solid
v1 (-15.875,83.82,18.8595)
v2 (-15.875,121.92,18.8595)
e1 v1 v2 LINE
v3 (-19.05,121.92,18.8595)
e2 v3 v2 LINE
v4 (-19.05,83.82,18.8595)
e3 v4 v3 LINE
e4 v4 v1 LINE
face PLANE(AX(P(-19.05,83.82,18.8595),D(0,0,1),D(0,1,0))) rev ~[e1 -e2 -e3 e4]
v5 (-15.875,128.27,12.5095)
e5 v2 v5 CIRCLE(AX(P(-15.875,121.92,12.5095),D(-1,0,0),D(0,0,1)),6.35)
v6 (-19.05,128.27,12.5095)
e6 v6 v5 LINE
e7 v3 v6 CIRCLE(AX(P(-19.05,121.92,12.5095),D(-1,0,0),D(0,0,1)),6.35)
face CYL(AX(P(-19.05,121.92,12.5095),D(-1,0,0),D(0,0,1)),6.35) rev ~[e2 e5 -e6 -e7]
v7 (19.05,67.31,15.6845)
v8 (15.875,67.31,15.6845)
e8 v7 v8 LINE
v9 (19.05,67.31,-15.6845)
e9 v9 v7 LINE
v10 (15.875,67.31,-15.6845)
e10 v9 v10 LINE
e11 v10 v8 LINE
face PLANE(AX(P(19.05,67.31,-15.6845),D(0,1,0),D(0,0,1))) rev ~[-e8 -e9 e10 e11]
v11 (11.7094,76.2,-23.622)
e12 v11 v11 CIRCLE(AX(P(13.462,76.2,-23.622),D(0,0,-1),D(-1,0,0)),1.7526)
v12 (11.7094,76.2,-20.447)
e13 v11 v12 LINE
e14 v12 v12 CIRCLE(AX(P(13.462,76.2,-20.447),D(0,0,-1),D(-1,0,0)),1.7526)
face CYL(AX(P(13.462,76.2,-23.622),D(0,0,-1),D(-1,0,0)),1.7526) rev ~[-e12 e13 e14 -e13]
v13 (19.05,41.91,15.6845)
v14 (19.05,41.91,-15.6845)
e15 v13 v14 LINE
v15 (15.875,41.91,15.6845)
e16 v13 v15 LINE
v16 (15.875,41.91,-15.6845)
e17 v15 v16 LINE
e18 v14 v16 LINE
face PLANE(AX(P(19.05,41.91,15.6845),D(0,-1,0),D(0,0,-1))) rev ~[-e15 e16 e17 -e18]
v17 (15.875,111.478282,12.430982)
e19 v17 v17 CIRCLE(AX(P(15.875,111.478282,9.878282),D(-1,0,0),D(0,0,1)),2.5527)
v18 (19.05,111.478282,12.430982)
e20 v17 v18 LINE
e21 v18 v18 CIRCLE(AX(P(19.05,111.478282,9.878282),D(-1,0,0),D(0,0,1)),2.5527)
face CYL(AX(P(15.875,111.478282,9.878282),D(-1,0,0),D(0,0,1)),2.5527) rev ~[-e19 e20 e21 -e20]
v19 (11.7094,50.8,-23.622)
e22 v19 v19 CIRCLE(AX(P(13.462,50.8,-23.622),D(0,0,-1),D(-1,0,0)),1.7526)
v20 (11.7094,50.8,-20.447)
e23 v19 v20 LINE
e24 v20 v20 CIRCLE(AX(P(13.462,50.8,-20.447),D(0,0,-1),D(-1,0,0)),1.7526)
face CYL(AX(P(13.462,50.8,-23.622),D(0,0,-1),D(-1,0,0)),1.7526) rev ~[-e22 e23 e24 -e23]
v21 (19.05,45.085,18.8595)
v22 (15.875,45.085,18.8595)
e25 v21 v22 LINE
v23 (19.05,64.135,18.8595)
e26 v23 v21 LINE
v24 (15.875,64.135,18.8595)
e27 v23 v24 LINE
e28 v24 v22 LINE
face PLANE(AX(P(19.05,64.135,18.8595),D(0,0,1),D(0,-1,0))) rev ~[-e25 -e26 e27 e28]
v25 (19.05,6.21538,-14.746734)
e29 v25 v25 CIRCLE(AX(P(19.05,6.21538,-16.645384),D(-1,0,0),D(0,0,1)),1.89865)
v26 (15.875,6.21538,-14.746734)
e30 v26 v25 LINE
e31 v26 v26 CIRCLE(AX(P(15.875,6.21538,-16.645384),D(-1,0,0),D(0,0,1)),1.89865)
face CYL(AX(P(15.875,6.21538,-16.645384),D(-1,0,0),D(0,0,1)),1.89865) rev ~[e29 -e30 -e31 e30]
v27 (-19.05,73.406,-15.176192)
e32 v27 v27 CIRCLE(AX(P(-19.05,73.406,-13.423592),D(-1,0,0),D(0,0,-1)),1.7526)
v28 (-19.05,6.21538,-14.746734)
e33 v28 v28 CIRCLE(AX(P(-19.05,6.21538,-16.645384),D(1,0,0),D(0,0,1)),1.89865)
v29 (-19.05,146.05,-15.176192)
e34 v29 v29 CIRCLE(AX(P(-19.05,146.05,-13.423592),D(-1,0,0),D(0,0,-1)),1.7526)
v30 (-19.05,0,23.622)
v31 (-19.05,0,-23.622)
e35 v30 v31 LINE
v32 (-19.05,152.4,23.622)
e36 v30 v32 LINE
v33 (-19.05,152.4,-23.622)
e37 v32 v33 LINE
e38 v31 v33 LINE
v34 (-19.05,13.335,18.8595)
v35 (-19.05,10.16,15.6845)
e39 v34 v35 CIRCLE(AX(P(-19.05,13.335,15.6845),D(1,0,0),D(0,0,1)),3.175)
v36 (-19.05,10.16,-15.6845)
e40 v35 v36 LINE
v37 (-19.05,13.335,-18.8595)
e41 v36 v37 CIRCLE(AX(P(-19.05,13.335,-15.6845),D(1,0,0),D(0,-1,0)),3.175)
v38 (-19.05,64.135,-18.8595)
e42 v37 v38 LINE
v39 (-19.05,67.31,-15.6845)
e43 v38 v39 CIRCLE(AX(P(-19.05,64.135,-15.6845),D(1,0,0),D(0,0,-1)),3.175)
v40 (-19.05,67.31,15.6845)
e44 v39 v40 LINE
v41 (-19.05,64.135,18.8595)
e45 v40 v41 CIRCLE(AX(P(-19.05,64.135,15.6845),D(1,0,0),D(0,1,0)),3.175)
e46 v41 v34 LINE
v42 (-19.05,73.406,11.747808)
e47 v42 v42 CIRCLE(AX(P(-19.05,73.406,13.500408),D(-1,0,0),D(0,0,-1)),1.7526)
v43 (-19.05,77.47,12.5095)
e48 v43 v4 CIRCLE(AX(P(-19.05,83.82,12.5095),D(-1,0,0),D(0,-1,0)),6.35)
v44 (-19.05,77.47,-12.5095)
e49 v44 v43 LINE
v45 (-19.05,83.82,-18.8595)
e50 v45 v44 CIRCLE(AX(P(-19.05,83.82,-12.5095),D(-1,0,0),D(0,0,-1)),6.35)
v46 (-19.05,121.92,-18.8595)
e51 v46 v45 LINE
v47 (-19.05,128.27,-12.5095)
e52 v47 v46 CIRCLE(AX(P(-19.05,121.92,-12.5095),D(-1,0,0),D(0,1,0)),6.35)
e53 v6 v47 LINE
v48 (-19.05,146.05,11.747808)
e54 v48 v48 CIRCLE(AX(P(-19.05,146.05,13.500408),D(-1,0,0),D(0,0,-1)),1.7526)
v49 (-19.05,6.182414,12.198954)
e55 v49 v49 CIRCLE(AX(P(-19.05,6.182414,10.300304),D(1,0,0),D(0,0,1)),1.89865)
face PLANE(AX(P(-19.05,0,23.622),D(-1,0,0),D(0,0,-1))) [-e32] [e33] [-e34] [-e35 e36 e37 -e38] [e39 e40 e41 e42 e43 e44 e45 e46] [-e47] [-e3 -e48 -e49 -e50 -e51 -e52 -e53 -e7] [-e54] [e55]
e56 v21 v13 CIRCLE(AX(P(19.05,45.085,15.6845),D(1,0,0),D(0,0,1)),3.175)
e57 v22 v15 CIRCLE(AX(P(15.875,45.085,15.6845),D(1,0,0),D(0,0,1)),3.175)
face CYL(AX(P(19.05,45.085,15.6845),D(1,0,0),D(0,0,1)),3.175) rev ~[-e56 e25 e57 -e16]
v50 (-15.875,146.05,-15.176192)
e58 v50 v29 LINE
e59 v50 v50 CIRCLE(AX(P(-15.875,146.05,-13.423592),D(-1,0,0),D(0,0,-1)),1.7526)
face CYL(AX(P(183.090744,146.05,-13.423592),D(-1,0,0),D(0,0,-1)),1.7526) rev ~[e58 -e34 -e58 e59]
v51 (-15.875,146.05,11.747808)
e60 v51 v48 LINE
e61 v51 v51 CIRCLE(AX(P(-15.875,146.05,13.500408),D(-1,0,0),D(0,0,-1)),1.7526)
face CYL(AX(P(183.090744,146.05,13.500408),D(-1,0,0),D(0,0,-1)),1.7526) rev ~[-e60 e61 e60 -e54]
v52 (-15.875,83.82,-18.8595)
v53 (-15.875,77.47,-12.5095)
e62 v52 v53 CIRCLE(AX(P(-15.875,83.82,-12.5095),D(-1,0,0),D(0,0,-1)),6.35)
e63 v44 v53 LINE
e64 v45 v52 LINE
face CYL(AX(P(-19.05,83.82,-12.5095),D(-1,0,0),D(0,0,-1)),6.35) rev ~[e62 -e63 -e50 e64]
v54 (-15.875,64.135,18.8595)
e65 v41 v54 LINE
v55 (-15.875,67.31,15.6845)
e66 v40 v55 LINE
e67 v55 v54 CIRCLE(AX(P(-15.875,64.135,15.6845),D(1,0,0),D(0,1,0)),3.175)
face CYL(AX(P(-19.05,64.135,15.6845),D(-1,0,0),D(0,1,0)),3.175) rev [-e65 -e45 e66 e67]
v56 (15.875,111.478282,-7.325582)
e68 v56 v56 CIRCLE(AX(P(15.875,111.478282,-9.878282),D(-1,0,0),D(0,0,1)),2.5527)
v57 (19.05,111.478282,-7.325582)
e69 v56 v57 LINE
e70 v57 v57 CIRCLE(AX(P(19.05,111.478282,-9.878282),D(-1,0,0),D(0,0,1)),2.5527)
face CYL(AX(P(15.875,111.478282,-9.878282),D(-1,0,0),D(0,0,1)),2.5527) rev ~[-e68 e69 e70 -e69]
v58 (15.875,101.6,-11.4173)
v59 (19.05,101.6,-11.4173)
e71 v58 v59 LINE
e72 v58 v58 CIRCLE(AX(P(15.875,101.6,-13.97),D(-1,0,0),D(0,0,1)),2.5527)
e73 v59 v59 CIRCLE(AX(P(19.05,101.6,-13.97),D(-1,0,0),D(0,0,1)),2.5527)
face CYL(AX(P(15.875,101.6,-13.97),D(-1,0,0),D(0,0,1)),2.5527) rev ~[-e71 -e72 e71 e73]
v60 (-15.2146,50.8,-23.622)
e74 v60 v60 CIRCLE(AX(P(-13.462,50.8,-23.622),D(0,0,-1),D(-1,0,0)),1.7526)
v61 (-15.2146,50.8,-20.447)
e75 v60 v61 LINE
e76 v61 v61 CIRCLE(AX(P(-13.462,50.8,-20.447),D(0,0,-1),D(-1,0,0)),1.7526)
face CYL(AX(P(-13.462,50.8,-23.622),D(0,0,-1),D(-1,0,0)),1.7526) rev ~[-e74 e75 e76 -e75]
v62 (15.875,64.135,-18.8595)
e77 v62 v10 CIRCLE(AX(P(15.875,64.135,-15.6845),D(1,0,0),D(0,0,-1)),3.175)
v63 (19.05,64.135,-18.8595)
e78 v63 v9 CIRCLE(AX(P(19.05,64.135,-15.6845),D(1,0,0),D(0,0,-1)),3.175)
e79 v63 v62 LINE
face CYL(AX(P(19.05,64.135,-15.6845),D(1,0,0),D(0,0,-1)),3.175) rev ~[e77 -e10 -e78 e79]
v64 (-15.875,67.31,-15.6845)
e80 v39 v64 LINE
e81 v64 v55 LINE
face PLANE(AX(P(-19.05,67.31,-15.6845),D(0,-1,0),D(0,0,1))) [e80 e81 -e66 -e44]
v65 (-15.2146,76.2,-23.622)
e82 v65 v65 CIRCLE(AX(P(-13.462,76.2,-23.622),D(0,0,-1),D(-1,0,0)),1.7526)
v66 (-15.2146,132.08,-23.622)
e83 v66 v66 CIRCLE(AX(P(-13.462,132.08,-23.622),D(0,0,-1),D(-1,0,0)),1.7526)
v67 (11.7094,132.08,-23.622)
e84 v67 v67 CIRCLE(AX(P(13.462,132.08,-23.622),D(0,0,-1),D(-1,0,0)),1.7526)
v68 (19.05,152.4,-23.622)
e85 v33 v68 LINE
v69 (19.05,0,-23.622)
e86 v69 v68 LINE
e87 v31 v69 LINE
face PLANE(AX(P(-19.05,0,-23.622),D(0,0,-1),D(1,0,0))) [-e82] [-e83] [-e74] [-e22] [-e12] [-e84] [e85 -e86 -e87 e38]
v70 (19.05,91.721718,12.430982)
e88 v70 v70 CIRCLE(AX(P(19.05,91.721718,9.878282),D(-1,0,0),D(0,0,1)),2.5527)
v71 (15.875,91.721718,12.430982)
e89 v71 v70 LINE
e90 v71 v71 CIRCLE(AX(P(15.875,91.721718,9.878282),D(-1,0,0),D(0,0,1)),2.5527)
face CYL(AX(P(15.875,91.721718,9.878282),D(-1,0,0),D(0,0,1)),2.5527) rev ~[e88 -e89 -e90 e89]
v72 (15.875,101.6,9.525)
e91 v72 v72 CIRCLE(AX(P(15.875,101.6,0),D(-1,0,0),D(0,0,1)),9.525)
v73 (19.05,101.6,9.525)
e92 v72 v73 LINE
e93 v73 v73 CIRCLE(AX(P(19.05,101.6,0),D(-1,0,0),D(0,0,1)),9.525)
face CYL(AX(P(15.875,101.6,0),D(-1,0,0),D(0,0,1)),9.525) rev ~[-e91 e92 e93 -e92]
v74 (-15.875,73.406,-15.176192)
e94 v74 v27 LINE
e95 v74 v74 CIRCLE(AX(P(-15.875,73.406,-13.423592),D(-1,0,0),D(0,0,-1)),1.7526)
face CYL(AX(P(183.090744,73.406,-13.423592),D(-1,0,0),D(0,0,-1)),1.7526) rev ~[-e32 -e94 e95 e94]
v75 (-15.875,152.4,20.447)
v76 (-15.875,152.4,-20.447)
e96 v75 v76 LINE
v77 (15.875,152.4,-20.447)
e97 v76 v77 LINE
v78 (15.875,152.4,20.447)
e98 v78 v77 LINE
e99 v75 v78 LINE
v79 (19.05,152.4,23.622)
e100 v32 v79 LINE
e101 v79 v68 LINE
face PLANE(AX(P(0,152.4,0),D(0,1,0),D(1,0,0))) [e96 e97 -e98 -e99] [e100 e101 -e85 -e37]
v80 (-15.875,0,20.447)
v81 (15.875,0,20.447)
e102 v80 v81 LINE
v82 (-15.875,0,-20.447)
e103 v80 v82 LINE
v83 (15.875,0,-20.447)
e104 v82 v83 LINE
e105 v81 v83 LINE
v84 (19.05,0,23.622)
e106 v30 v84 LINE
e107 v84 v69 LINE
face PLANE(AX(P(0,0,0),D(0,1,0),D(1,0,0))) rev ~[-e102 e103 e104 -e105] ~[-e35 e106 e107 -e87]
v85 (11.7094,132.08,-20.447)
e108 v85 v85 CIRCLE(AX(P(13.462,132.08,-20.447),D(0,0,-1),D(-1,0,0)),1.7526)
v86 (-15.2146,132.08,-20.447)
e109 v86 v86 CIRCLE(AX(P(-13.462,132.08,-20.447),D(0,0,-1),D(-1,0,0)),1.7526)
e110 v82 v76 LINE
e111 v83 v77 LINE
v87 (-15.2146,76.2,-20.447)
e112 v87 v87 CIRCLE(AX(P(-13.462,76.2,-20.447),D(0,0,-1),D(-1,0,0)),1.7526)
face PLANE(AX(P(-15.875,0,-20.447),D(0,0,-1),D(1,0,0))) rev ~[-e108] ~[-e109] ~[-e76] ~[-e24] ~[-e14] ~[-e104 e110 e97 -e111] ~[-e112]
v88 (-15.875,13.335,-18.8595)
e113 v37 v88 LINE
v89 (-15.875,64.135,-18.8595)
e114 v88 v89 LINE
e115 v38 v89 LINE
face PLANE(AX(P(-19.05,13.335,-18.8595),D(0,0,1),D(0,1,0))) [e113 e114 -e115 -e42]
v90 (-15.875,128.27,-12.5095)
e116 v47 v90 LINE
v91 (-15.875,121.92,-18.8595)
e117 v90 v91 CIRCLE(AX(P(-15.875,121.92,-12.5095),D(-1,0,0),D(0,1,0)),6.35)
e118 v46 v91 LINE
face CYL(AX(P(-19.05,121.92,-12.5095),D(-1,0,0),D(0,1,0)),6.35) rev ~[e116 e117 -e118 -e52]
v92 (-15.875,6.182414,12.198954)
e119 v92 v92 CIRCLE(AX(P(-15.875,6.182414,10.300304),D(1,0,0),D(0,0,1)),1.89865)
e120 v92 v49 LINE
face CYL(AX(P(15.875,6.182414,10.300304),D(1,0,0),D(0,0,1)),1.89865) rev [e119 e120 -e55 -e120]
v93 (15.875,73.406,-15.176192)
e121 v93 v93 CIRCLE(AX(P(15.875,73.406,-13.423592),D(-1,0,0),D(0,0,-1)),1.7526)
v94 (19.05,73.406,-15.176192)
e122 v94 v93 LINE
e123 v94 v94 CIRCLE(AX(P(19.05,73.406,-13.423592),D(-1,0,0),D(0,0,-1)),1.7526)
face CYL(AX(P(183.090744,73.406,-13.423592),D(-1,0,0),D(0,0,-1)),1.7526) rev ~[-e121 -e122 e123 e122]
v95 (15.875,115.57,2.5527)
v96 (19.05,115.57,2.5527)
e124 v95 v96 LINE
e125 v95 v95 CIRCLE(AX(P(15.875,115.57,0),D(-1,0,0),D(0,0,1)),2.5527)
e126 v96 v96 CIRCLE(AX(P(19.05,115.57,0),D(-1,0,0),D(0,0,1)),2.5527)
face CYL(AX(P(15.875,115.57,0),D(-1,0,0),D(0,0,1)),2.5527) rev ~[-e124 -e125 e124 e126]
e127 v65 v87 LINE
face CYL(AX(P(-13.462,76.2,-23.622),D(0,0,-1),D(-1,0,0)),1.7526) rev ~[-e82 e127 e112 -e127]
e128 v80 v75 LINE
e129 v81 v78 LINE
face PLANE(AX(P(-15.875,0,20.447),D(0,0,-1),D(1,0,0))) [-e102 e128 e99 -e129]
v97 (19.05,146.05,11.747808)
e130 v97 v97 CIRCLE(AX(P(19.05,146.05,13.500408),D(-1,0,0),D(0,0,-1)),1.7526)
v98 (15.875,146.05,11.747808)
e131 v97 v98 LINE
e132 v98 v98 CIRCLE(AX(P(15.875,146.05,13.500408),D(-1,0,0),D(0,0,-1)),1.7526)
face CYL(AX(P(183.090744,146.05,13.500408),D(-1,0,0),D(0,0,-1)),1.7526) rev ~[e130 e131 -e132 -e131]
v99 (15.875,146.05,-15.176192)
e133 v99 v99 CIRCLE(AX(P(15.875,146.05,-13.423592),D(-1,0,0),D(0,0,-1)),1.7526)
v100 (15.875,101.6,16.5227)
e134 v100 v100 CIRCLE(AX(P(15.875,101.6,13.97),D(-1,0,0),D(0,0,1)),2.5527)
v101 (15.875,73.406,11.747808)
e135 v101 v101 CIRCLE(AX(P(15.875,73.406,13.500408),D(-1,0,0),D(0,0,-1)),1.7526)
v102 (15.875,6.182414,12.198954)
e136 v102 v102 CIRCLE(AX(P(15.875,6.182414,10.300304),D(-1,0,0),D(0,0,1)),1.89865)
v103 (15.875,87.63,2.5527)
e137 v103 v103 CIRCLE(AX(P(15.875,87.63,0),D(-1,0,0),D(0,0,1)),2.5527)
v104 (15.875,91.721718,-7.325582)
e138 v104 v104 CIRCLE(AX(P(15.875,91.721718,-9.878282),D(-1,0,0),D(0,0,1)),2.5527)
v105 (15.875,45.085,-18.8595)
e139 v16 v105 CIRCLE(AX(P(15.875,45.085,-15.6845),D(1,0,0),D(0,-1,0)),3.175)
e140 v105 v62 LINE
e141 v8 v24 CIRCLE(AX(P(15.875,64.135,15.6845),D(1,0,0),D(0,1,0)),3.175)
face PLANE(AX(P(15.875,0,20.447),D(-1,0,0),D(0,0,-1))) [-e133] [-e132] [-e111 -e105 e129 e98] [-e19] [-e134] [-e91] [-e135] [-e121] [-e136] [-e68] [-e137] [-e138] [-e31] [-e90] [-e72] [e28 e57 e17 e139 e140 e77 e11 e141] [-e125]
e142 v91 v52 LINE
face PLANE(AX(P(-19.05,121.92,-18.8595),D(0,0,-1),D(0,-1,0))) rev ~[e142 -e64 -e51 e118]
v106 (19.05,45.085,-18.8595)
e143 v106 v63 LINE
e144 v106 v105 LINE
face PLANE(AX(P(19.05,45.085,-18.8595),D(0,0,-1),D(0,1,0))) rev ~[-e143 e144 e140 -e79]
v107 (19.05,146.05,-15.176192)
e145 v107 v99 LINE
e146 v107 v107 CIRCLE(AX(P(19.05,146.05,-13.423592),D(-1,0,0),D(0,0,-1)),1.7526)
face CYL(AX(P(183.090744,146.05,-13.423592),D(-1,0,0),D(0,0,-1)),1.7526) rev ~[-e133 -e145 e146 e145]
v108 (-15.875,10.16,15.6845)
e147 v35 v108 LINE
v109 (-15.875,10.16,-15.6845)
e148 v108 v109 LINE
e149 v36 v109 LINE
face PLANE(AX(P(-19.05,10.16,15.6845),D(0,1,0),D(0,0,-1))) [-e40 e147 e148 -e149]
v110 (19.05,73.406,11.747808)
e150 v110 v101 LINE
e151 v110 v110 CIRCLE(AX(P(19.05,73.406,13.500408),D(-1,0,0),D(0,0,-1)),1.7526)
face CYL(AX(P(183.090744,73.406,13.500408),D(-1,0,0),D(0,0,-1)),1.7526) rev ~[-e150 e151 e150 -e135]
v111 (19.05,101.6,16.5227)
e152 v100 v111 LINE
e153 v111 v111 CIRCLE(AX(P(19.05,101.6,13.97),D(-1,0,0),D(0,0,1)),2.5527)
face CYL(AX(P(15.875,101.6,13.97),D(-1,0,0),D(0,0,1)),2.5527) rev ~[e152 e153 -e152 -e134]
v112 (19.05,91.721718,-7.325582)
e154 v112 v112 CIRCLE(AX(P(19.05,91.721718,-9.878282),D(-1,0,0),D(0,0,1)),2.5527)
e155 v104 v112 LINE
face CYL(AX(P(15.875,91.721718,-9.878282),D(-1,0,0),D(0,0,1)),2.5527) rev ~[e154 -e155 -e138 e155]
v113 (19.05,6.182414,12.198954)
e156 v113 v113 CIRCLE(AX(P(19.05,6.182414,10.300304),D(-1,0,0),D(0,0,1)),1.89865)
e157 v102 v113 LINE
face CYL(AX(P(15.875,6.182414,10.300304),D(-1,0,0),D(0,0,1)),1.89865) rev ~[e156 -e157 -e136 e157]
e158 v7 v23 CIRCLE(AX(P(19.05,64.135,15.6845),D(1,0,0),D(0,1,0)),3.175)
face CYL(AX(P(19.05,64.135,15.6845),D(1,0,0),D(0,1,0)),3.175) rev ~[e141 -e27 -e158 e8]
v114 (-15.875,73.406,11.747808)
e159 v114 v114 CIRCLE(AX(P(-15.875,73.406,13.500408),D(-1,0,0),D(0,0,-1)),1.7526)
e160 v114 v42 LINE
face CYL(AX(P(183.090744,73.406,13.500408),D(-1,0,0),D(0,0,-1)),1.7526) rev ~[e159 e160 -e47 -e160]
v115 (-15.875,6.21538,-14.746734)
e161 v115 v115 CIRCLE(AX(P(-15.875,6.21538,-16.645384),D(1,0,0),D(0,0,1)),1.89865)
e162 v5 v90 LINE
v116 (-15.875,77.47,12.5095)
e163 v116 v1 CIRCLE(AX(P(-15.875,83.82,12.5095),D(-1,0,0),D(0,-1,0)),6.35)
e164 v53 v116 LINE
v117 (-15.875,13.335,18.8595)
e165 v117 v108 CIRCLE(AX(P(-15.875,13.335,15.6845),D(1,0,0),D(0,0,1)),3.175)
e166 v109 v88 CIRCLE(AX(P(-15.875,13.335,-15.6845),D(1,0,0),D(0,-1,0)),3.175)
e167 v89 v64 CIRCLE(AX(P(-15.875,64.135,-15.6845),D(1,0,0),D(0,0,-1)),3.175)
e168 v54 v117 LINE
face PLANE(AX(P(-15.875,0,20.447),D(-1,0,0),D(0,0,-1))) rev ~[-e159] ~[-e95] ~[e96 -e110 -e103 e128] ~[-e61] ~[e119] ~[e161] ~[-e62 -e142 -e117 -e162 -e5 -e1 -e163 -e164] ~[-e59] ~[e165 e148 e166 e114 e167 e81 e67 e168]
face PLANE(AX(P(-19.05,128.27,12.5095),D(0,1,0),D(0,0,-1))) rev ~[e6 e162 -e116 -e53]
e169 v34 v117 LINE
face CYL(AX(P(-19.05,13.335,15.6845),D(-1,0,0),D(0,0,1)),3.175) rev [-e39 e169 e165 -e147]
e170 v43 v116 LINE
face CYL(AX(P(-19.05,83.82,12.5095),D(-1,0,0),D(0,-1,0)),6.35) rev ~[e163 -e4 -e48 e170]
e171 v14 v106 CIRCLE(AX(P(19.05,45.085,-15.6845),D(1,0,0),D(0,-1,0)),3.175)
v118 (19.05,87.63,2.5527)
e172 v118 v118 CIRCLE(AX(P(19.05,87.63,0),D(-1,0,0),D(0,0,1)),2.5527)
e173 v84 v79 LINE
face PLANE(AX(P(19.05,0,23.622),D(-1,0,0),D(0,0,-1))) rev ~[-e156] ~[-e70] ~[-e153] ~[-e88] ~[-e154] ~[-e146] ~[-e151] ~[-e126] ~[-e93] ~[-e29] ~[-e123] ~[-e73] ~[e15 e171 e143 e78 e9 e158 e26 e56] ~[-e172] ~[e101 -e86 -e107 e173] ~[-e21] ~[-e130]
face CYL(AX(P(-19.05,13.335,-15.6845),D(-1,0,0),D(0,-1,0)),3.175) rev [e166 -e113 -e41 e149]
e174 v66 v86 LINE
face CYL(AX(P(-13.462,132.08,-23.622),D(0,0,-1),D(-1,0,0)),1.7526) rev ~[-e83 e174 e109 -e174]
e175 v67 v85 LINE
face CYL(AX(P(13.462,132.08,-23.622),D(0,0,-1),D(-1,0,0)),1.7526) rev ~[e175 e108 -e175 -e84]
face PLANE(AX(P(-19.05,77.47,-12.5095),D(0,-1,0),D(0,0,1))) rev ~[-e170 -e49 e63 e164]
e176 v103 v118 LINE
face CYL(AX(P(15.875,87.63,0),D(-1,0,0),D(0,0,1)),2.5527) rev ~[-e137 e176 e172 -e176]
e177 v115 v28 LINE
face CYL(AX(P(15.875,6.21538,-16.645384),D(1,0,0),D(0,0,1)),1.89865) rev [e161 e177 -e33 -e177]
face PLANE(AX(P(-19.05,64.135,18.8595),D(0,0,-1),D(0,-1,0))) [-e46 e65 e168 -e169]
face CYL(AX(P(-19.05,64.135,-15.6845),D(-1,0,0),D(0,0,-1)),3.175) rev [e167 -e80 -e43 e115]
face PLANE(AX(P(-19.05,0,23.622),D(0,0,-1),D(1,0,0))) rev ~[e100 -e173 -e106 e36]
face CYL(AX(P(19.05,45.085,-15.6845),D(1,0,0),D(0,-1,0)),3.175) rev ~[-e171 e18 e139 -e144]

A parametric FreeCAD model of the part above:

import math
import FreeCAD as App
import Part
import Sketcher
Q = App.Units.Quantity

doc = App.newDocument("Part")
body = doc.addObject("PartDesign::Body", "Body")

# Sketch on XZ plane
sketch1 = doc.addObject("Sketcher::SketchObject", "Sketch")
body.addObject(sketch1)
sketch1.AttachmentSupport = (doc.XZ_Plane, [""])
sketch1.MapMode = "FlatFace"
sketch1.addGeometry([
    Part.LineSegment(App.Vector(-19.05, -23.622, 0), App.Vector(-19.05, 23.622, 0)),  # 0
    Part.LineSegment(App.Vector(-19.05, 23.622, 0), App.Vector(19.05, 23.622, 0)),  # 1
    Part.LineSegment(App.Vector(19.05, 23.622, 0), App.Vector(19.05, -23.622, 0)),  # 2
    Part.LineSegment(App.Vector(19.05, -23.622, 0), App.Vector(-19.05, -23.622, 0)),  # 3
    Part.LineSegment(App.Vector(15.875, 20.447, 0), App.Vector(-15.875, 20.447, 0)),  # 4
    Part.LineSegment(App.Vector(-15.875, 20.447, 0), App.Vector(-15.875, -20.447, 0)),  # 5
    Part.LineSegment(App.Vector(-15.875, -20.447, 0), App.Vector(15.875, -20.447, 0)),  # 6
    Part.LineSegment(App.Vector(15.875, -20.447, 0), App.Vector(15.875, 20.447, 0)),  # 7
], False)
sketch1.addConstraint([
    Sketcher.Constraint("Coincident", 0, 2, 1, 1),
    Sketcher.Constraint("Coincident", 1, 2, 2, 1),
    Sketcher.Constraint("Coincident", 2, 2, 3, 1),
    Sketcher.Constraint("Coincident", 3, 2, 0, 1),
    Sketcher.Constraint("Coincident", 4, 2, 5, 1),
    Sketcher.Constraint("Coincident", 5, 2, 6, 1),
    Sketcher.Constraint("Coincident", 6, 2, 7, 1),
    Sketcher.Constraint("Coincident", 7, 2, 4, 1),
    Sketcher.Constraint("Vertical", 0),
    Sketcher.Constraint("Horizontal", 1),
    Sketcher.Constraint("Vertical", 2),
    Sketcher.Constraint("Horizontal", 3),
    Sketcher.Constraint("Horizontal", 4),
    Sketcher.Constraint("Vertical", 5),
    Sketcher.Constraint("Horizontal", 6),
    Sketcher.Constraint("Vertical", 7),
    Sketcher.Constraint("Symmetric", 0, 2, 2, 2, -1, 1),
    Sketcher.Constraint("Symmetric", 4, 2, 6, 2, -1, 1),
    Sketcher.Constraint("DistanceX", 1, 1, 1, 2, Q("1.5 in")),
    Sketcher.Constraint("DistanceX", 4, 2, 4, 1, Q("1.25 in")),
    Sketcher.Constraint("DistanceY", 0, 1, 0, 2, Q("1.86 in")),
    Sketcher.Constraint("DistanceY", 5, 2, 5, 1, Q("1.61 in")),
])
pad1 = doc.addObject("PartDesign::Pad", "Pad")
body.addObject(pad1)
pad1.Profile = sketch1
pad1.Length = Q("6 in")
pad1.Reversed = True

# Sketch on YZ plane
sketch2 = doc.addObject("Sketcher::SketchObject", "Sketch001")
body.addObject(sketch2)
sketch2.AttachmentSupport = (doc.YZ_Plane, [""])
sketch2.MapMode = "FlatFace"
sketch2.AttachmentOffset = App.Placement(App.Vector(0, 0, 0.625 * 25.4), App.Rotation())
sketch2.addGeometry([
    Part.Circle(App.Vector(6.21538, -16.645384, 0), App.Vector(0, 0, 1), 1.89865),
    Part.Circle(App.Vector(6.182414, 10.300304, 0), App.Vector(0, 0, 1), 1.89865),
], False)
sketch2.addConstraint([
    Sketcher.Constraint("Equal", 0, 1),
    Sketcher.Constraint("Diameter", 0, Q("0.1495 in")),
    Sketcher.Constraint("DistanceX", -1, 1, 0, 3, Q("0.2447 in")),
    Sketcher.Constraint("DistanceY", 0, 3, 1, 3, Q("26.945688 mm")),
    Sketcher.Constraint("DistanceY", 0, 3, -1, 1, Q("16.645384 mm")),
    Sketcher.Constraint("DistanceX", -1, 1, 1, 3, Q("6.182414 mm")),
])
pocket1 = doc.addObject("PartDesign::Pocket", "Pocket")
body.addObject(pocket1)
pocket1.Profile = sketch2
pocket1.Type = "ThroughAll"
pocket1.Midplane = True

# Sketch on YZ plane
sketch3 = doc.addObject("Sketcher::SketchObject", "Sketch002")
body.addObject(sketch3)
sketch3.AttachmentSupport = (doc.YZ_Plane, [""])
sketch3.MapMode = "FlatFace"
sketch3.AttachmentOffset = App.Placement(App.Vector(0, 0, -0.75 * 25.4), App.Rotation())
sketch3.addGeometry([
    Part.LineSegment(App.Vector(10.16, -15.6845, 0), App.Vector(10.16, 15.6845, 0)),  # 0
    Part.ArcOfCircle(Part.Circle(App.Vector(13.335, 15.6845, 0), App.Vector(0, 0, 1), 3.175), math.radians(90), math.radians(180)),  # 1
    Part.LineSegment(App.Vector(13.335, 18.8595, 0), App.Vector(64.135, 18.8595, 0)),  # 2
    Part.ArcOfCircle(Part.Circle(App.Vector(64.135, 15.6845, 0), App.Vector(0, 0, 1), 3.175), math.radians(0), math.radians(90)),  # 3
    Part.LineSegment(App.Vector(67.31, 15.6845, 0), App.Vector(67.31, -15.6845, 0)),  # 4
    Part.ArcOfCircle(Part.Circle(App.Vector(64.135, -15.6845, 0), App.Vector(0, 0, 1), 3.175), math.radians(-90), math.radians(0)),  # 5
    Part.LineSegment(App.Vector(64.135, -18.8595, 0), App.Vector(13.335, -18.8595, 0)),  # 6
    Part.ArcOfCircle(Part.Circle(App.Vector(13.335, -15.6845, 0), App.Vector(0, 0, 1), 3.175), math.radians(-180), math.radians(-90)),  # 7
], False)
sketch3.addConstraint([
    Sketcher.Constraint("Tangent", 0, 2, 1, 2),
    Sketcher.Constraint("Tangent", 1, 1, 2, 1),
    Sketcher.Constraint("Tangent", 2, 2, 3, 2),
    Sketcher.Constraint("Tangent", 3, 1, 4, 1),
    Sketcher.Constraint("Tangent", 4, 2, 5, 2),
    Sketcher.Constraint("Tangent", 5, 1, 6, 1),
    Sketcher.Constraint("Tangent", 6, 2, 7, 2),
    Sketcher.Constraint("Tangent", 7, 1, 0, 1),
    Sketcher.Constraint("Vertical", 0),
    Sketcher.Constraint("Horizontal", 2),
    Sketcher.Constraint("Vertical", 4),
    Sketcher.Constraint("Horizontal", 6),
    Sketcher.Constraint("Equal", 1, 3),
    Sketcher.Constraint("Equal", 3, 5),
    Sketcher.Constraint("Equal", 5, 7),
    Sketcher.Constraint("DistanceX", 2, 1, 2, 2, Q("2 in")),
    Sketcher.Constraint("Radius", 1, Q("0.125 in")),
    Sketcher.Constraint("DistanceX", -1, 1, 0, 2, Q("0.4 in")),
    Sketcher.Constraint("DistanceY", 0, 1, 0, 2, Q("1.235 in")),
    Sketcher.Constraint("DistanceY", -1, 1, 1, 3, Q("0.6175 in")),
])
pocket2 = doc.addObject("PartDesign::Pocket", "Pocket001")
body.addObject(pocket2)
pocket2.Profile = sketch3
pocket2.Length = Q("0.125 in")
pocket2.Reversed = True

# Sketch on YZ plane
sketch4 = doc.addObject("Sketcher::SketchObject", "Sketch003")
body.addObject(sketch4)
sketch4.AttachmentSupport = (doc.YZ_Plane, [""])
sketch4.MapMode = "FlatFace"
sketch4.AttachmentOffset = App.Placement(App.Vector(0, 0, 0.75 * 25.4), App.Rotation())
sketch4.addGeometry([
    Part.LineSegment(App.Vector(67.31, -15.6845, 0), App.Vector(67.31, 15.6845, 0)),  # 0
    Part.ArcOfCircle(Part.Circle(App.Vector(64.135, 15.6845, 0), App.Vector(0, 0, 1), 3.175), math.radians(0), math.radians(90)),  # 1
    Part.LineSegment(App.Vector(64.135, 18.8595, 0), App.Vector(45.085, 18.8595, 0)),  # 2
    Part.ArcOfCircle(Part.Circle(App.Vector(45.085, 15.6845, 0), App.Vector(0, 0, 1), 3.175), math.radians(90), math.radians(180)),  # 3
    Part.LineSegment(App.Vector(41.91, 15.6845, 0), App.Vector(41.91, -15.6845, 0)),  # 4
    Part.ArcOfCircle(Part.Circle(App.Vector(45.085, -15.6845, 0), App.Vector(0, 0, 1), 3.175), math.radians(-180), math.radians(-90)),  # 5
    Part.LineSegment(App.Vector(45.085, -18.8595, 0), App.Vector(64.135, -18.8595, 0)),  # 6
    Part.ArcOfCircle(Part.Circle(App.Vector(64.135, -15.6845, 0), App.Vector(0, 0, 1), 3.175), math.radians(-90), math.radians(0)),  # 7
], False)
sketch4.addConstraint([
    Sketcher.Constraint("Tangent", 0, 2, 1, 1),
    Sketcher.Constraint("Tangent", 1, 2, 2, 1),
    Sketcher.Constraint("Tangent", 2, 2, 3, 1),
    Sketcher.Constraint("Tangent", 3, 2, 4, 1),
    Sketcher.Constraint("Tangent", 4, 2, 5, 1),
    Sketcher.Constraint("Tangent", 5, 2, 6, 1),
    Sketcher.Constraint("Tangent", 6, 2, 7, 1),
    Sketcher.Constraint("Tangent", 7, 2, 0, 1),
    Sketcher.Constraint("Vertical", 0),
    Sketcher.Constraint("Horizontal", 2),
    Sketcher.Constraint("Vertical", 4),
    Sketcher.Constraint("Horizontal", 6),
    Sketcher.Constraint("Equal", 1, 3),
    Sketcher.Constraint("Equal", 3, 5),
    Sketcher.Constraint("Equal", 5, 7),
    Sketcher.Constraint("Radius", 1, Q("0.125 in")),
    Sketcher.Constraint("DistanceX", 3, 2, 0, 2, Q("1 in")),
    Sketcher.Constraint("DistanceY", 0, 1, 0, 2, Q("1.235 in")),
    Sketcher.Constraint("DistanceX", -1, 1, 0, 2, Q("2.65 in")),
    Sketcher.Constraint("DistanceY", -1, 1, 1, 3, Q("0.6175 in")),
])
pocket3 = doc.addObject("PartDesign::Pocket", "Pocket002")
body.addObject(pocket3)
pocket3.Profile = sketch4
pocket3.Length = Q("0.125 in")

# Sketch on YZ plane
sketch5 = doc.addObject("Sketcher::SketchObject", "Sketch004")
body.addObject(sketch5)
sketch5.AttachmentSupport = (doc.YZ_Plane, [""])
sketch5.MapMode = "FlatFace"
sketch5.AttachmentOffset = App.Placement(App.Vector(0, 0, 0.625 * 25.4), App.Rotation())
sketch5.addGeometry([
    Part.Circle(App.Vector(101.6, 0, 0), App.Vector(0, 0, 1), 9.525),  # 0
    Part.Circle(App.Vector(87.63, 0, 0), App.Vector(0, 0, 1), 2.5527),  # 1
    Part.Circle(App.Vector(91.721718, -9.878282, 0), App.Vector(0, 0, 1), 2.5527),  # 2
    Part.Circle(App.Vector(101.6, -13.97, 0), App.Vector(0, 0, 1), 2.5527),  # 3
    Part.Circle(App.Vector(111.478282, -9.878282, 0), App.Vector(0, 0, 1), 2.5527),  # 4
    Part.Circle(App.Vector(115.57, 0, 0), App.Vector(0, 0, 1), 2.5527),  # 5
    Part.Circle(App.Vector(111.478282, 9.878282, 0), App.Vector(0, 0, 1), 2.5527),  # 6
    Part.Circle(App.Vector(101.6, 13.97, 0), App.Vector(0, 0, 1), 2.5527),  # 7
    Part.Circle(App.Vector(91.721718, 9.878282, 0), App.Vector(0, 0, 1), 2.5527),  # 8
], False)
sketch5.addConstraint([
    Sketcher.Constraint("Equal", 1, 2),
    Sketcher.Constraint("Equal", 2, 3),
    Sketcher.Constraint("Equal", 3, 4),
    Sketcher.Constraint("Equal", 4, 5),
    Sketcher.Constraint("Equal", 5, 6),
    Sketcher.Constraint("Equal", 6, 7),
    Sketcher.Constraint("Equal", 7, 8),
    Sketcher.Constraint("Symmetric", 4, 3, 6, 3, -1),
    Sketcher.Constraint("Symmetric", 3, 3, 7, 3, -1),
    Sketcher.Constraint("Symmetric", 2, 3, 8, 3, -1),
    Sketcher.Constraint("PointOnObject", 0, 3, -1),
    Sketcher.Constraint("PointOnObject", 1, 3, -1),
    Sketcher.Constraint("PointOnObject", 5, 3, -1),
    Sketcher.Constraint("Horizontal", 2, 3, 4, 3),
    Sketcher.Constraint("Vertical", 0, 3, 3, 3),
    Sketcher.Constraint("Diameter", 0, Q("0.75 in")),
    Sketcher.Constraint("Diameter", 1, Q("0.201 in")),
    Sketcher.Constraint("DistanceX", -1, 1, 0, 3, Q("4 in")),
    Sketcher.Constraint("DistanceX", 1, 3, 5, 3, Q("1.1 in")),
    Sketcher.Constraint("DistanceX", -1, 1, 1, 3, Q("3.45 in")),
    Sketcher.Constraint("DistanceY", 3, 3, -1, 1, Q("0.55 in")),
    Sketcher.Constraint("DistanceX", -1, 1, 2, 3, Q("91.721718 mm")),
    Sketcher.Constraint("DistanceY", 2, 3, -1, 1, Q("9.878282 mm")),
    Sketcher.Constraint("DistanceX", -1, 1, 4, 3, Q("111.478282 mm")),
])
pocket4 = doc.addObject("PartDesign::Pocket", "Pocket003")
body.addObject(pocket4)
pocket4.Profile = sketch5
pocket4.Length = Q("0.125 in")
pocket4.Reversed = True

# Sketch on YZ plane
sketch6 = doc.addObject("Sketcher::SketchObject", "Sketch005")
body.addObject(sketch6)
sketch6.AttachmentSupport = (doc.YZ_Plane, [""])
sketch6.MapMode = "FlatFace"
sketch6.AttachmentOffset = App.Placement(App.Vector(0, 0, -0.75 * 25.4), App.Rotation())
sketch6.addGeometry([
    Part.LineSegment(App.Vector(77.47, -12.5095, 0), App.Vector(77.47, 12.5095, 0)),  # 0
    Part.ArcOfCircle(Part.Circle(App.Vector(83.82, 12.5095, 0), App.Vector(0, 0, 1), 6.35), math.radians(90), math.radians(180)),  # 1
    Part.LineSegment(App.Vector(83.82, 18.8595, 0), App.Vector(121.92, 18.8595, 0)),  # 2
    Part.ArcOfCircle(Part.Circle(App.Vector(121.92, 12.5095, 0), App.Vector(0, 0, 1), 6.35), math.radians(0), math.radians(90)),  # 3
    Part.LineSegment(App.Vector(128.27, 12.5095, 0), App.Vector(128.27, -12.5095, 0)),  # 4
    Part.ArcOfCircle(Part.Circle(App.Vector(121.92, -12.5095, 0), App.Vector(0, 0, 1), 6.35), math.radians(-90), math.radians(0)),  # 5
    Part.LineSegment(App.Vector(121.92, -18.8595, 0), App.Vector(83.82, -18.8595, 0)),  # 6
    Part.ArcOfCircle(Part.Circle(App.Vector(83.82, -12.5095, 0), App.Vector(0, 0, 1), 6.35), math.radians(180), math.radians(270)),  # 7
], False)
sketch6.addConstraint([
    Sketcher.Constraint("Tangent", 0, 2, 1, 2),
    Sketcher.Constraint("Tangent", 1, 1, 2, 1),
    Sketcher.Constraint("Tangent", 2, 2, 3, 2),
    Sketcher.Constraint("Tangent", 3, 1, 4, 1),
    Sketcher.Constraint("Tangent", 4, 2, 5, 2),
    Sketcher.Constraint("Tangent", 5, 1, 6, 1),
    Sketcher.Constraint("Tangent", 6, 2, 7, 2),
    Sketcher.Constraint("Tangent", 7, 1, 0, 1),
    Sketcher.Constraint("Vertical", 0),
    Sketcher.Constraint("Horizontal", 2),
    Sketcher.Constraint("Vertical", 4),
    Sketcher.Constraint("Horizontal", 6),
    Sketcher.Constraint("Equal", 1, 3),
    Sketcher.Constraint("Equal", 3, 5),
    Sketcher.Constraint("Equal", 5, 7),
    Sketcher.Constraint("Radius", 1, Q("0.25 in")),
    Sketcher.Constraint("DistanceX", 2, 1, 2, 2, Q("1.5 in")),
    Sketcher.Constraint("DistanceX", -1, 1, 1, 3, Q("3.3 in")),
    Sketcher.Constraint("DistanceY", 0, 1, 0, 2, Q("0.985 in")),
    Sketcher.Constraint("DistanceY", -1, 1, 1, 3, Q("0.4925 in")),
])
pocket5 = doc.addObject("PartDesign::Pocket", "Pocket004")
body.addObject(pocket5)
pocket5.Profile = sketch6
pocket5.Length = Q("0.125 in")
pocket5.Reversed = True

# Sketch on YZ plane
sketch7 = doc.addObject("Sketcher::SketchObject", "Sketch006")
body.addObject(sketch7)
sketch7.AttachmentSupport = (doc.YZ_Plane, [""])
sketch7.MapMode = "FlatFace"
sketch7.AttachmentOffset = App.Placement(App.Vector(0, 0, 0.75 * 25.4), App.Rotation())
sketch7.addGeometry([
    Part.Circle(App.Vector(73.406, -13.423592, 0), App.Vector(0, 0, 1), 1.7526),
    Part.Circle(App.Vector(73.406, 13.500408, 0), App.Vector(0, 0, 1), 1.7526),
    Part.Circle(App.Vector(146.05, 13.500408, 0), App.Vector(0, 0, 1), 1.7526),
    Part.Circle(App.Vector(146.05, -13.423592, 0), App.Vector(0, 0, 1), 1.7526),
], False)
sketch7.addConstraint([
    Sketcher.Constraint("Equal", 0, 1),
    Sketcher.Constraint("Equal", 1, 2),
    Sketcher.Constraint("Equal", 2, 3),
    Sketcher.Constraint("Horizontal", 1, 3, 2, 3),
    Sketcher.Constraint("Horizontal", 0, 3, 3, 3),
    Sketcher.Constraint("Vertical", 0, 3, 1, 3),
    Sketcher.Constraint("Vertical", 2, 3, 3, 3),
    Sketcher.Constraint("Diameter", 0, Q("0.138 in")),
    Sketcher.Constraint("DistanceX", -1, 1, 0, 3, Q("2.89 in")),
    Sketcher.Constraint("DistanceX", -1, 1, 2, 3, Q("5.75 in")),
    Sketcher.Constraint("DistanceY", 0, 3, 1, 3, Q("1.06 in")),
    Sketcher.Constraint("DistanceY", 0, 3, -1, 1, Q("13.423592 mm")),
])
doc.recompute()
hole = doc.addObject("PartDesign::Hole", "Hole")
body.addObject(hole)
hole.Profile = sketch7
hole.ThreadType = "None"
hole.Diameter = Q("0.138 in")
hole.DepthType = "ThroughAll"

# Sketch on XY plane
sketch8 = doc.addObject("Sketcher::SketchObject", "Sketch007")
body.addObject(sketch8)
sketch8.AttachmentSupport = (doc.XY_Plane, [""])
sketch8.MapMode = "FlatFace"
sketch8.AttachmentOffset = App.Placement(App.Vector(0, 0, -0.93 * 25.4), App.Rotation())
sketch8.addGeometry(Part.Circle(App.Vector(13.462, 50.8, 0), App.Vector(0, 0, 1), 1.7526), False)
sketch8.addConstraint([
    Sketcher.Constraint("Diameter", 0, Q("0.138 in")),
    Sketcher.Constraint("DistanceY", -1, 1, 0, 3, Q("2 in")),
    Sketcher.Constraint("DistanceX", -1, 1, 0, 3, Q("0.53 in")),
])
pocket6 = doc.addObject("PartDesign::Pocket", "Pocket005")
body.addObject(pocket6)
pocket6.Profile = sketch8
pocket6.Type = "UpToFirst"
pocket6.Reversed = True

# Sketch on XY plane
sketch9 = doc.addObject("Sketcher::SketchObject", "Sketch008")
body.addObject(sketch9)
sketch9.AttachmentSupport = (doc.XY_Plane, [""])
sketch9.MapMode = "FlatFace"
sketch9.AttachmentOffset = App.Placement(App.Vector(0, 0, -0.93 * 25.4), App.Rotation())
sketch9.addGeometry(Part.Circle(App.Vector(-13.462, 50.8, 0), App.Vector(0, 0, 1), 1.7526), False)
sketch9.addConstraint([
    Sketcher.Constraint("Diameter", 0, Q("0.138 in")),
    Sketcher.Constraint("DistanceY", -1, 1, 0, 3, Q("2 in")),
    Sketcher.Constraint("DistanceX", 0, 3, -1, 1, Q("0.53 in")),
])
pocket7 = doc.addObject("PartDesign::Pocket", "Pocket006")
body.addObject(pocket7)
pocket7.Profile = sketch9
pocket7.Type = "UpToFirst"
pocket7.Reversed = True

# Sketch on XY plane
sketch10 = doc.addObject("Sketcher::SketchObject", "Sketch009")
body.addObject(sketch10)
sketch10.AttachmentSupport = (doc.XY_Plane, [""])
sketch10.MapMode = "FlatFace"
sketch10.AttachmentOffset = App.Placement(App.Vector(0, 0, -0.93 * 25.4), App.Rotation())
sketch10.addGeometry(Part.Circle(App.Vector(13.462, 76.2, 0), App.Vector(0, 0, 1), 1.7526), False)
sketch10.addConstraint([
    Sketcher.Constraint("Diameter", 0, Q("0.138 in")),
    Sketcher.Constraint("DistanceY", -1, 1, 0, 3, Q("3 in")),
    Sketcher.Constraint("DistanceX", -1, 1, 0, 3, Q("0.53 in")),
])
pocket8 = doc.addObject("PartDesign::Pocket", "Pocket007")
body.addObject(pocket8)
pocket8.Profile = sketch10
pocket8.Type = "UpToFirst"
pocket8.Reversed = True

# Sketch on XY plane
sketch11 = doc.addObject("Sketcher::SketchObject", "Sketch010")
body.addObject(sketch11)
sketch11.AttachmentSupport = (doc.XY_Plane, [""])
sketch11.MapMode = "FlatFace"
sketch11.AttachmentOffset = App.Placement(App.Vector(0, 0, -0.93 * 25.4), App.Rotation())
sketch11.addGeometry(Part.Circle(App.Vector(-13.462, 76.2, 0), App.Vector(0, 0, 1), 1.7526), False)
sketch11.addConstraint([
    Sketcher.Constraint("Diameter", 0, Q("0.138 in")),
    Sketcher.Constraint("DistanceY", -1, 1, 0, 3, Q("3 in")),
    Sketcher.Constraint("DistanceX", 0, 3, -1, 1, Q("0.53 in")),
])
pocket9 = doc.addObject("PartDesign::Pocket", "Pocket008")
body.addObject(pocket9)
pocket9.Profile = sketch11
pocket9.Type = "UpToFirst"
pocket9.Reversed = True

# Sketch on XY plane
sketch12 = doc.addObject("Sketcher::SketchObject", "Sketch011")
body.addObject(sketch12)
sketch12.AttachmentSupport = (doc.XY_Plane, [""])
sketch12.MapMode = "FlatFace"
sketch12.AttachmentOffset = App.Placement(App.Vector(0, 0, -0.93 * 25.4), App.Rotation())
sketch12.addGeometry(Part.Circle(App.Vector(13.462, 132.08, 0), App.Vector(0, 0, 1), 1.7526), False)
sketch12.addConstraint([
    Sketcher.Constraint("Diameter", 0, Q("0.138 in")),
    Sketcher.Constraint("DistanceY", -1, 1, 0, 3, Q("5.2 in")),
    Sketcher.Constraint("DistanceX", -1, 1, 0, 3, Q("0.53 in")),
])
pocket10 = doc.addObject("PartDesign::Pocket", "Pocket009")
body.addObject(pocket10)
pocket10.Profile = sketch12
pocket10.Type = "UpToFirst"
pocket10.Reversed = True

# Sketch on XY plane
sketch13 = doc.addObject("Sketcher::SketchObject", "Sketch012")
body.addObject(sketch13)
sketch13.AttachmentSupport = (doc.XY_Plane, [""])
sketch13.MapMode = "FlatFace"
sketch13.AttachmentOffset = App.Placement(App.Vector(0, 0, -0.93 * 25.4), App.Rotation())
sketch13.addGeometry(Part.Circle(App.Vector(-13.462, 132.08, 0), App.Vector(0, 0, 1), 1.7526), False)
sketch13.addConstraint([
    Sketcher.Constraint("Diameter", 0, Q("0.138 in")),
    Sketcher.Constraint("DistanceY", -1, 1, 0, 3, Q("5.2 in")),
    Sketcher.Constraint("DistanceX", 0, 3, -1, 1, Q("0.53 in")),
])
pocket11 = doc.addObject("PartDesign::Pocket", "Pocket010")
body.addObject(pocket11)
pocket11.Profile = sketch13
pocket11.Type = "UpToFirst"
pocket11.Reversed = True

doc.recompute()
